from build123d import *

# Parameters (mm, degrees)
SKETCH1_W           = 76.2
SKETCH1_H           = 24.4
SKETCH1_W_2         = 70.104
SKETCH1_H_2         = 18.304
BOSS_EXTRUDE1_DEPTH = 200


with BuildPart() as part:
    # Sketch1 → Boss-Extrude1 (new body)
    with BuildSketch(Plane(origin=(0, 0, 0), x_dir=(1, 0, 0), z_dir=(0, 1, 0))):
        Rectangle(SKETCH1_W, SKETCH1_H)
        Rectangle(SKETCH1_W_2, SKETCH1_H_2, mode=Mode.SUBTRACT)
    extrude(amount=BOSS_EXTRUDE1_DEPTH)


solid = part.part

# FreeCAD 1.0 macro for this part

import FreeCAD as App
import Part
import Sketcher

V = App.Vector
Q = App.Units.Quantity

doc = App.newDocument("Part")
params = doc.addObject("Spreadsheet::Sheet", "Params")
for row, (alias, value) in enumerate([
    ("sketch1_width", "76.2 mm"),
    ("sketch1_height", "24.4 mm"),
    ("pad1_length", "200 mm"),
], start=1):
    params.set(f"A{row}", alias)
    params.set(f"B{row}", "=" + value)
    params.setAlias(f"B{row}", alias)

body = doc.addObject("PartDesign::Body", "Body")

# Sketch on XZ plane
sketch1 = body.newObject("Sketcher::SketchObject", "Sketch")
sketch1.AttachmentSupport = (doc.getObject("XZ_Plane"), [""])
sketch1.MapMode = "FlatFace"
sketch1.addGeometry(Part.LineSegment(V(-38, -12, 0), V(-38, 12, 0)), False)
sketch1.addGeometry(Part.LineSegment(V(-38, 12, 0), V(38, 12, 0)), False)
sketch1.addGeometry(Part.LineSegment(V(38, 12, 0), V(38, -12, 0)), False)
sketch1.addGeometry(Part.LineSegment(V(38, -12, 0), V(-38, -12, 0)), False)
sketch1.addGeometry(Part.LineSegment(V(35, 9, 0), V(-35, 9, 0)), False)
sketch1.addGeometry(Part.LineSegment(V(-35, 9, 0), V(-35, -9, 0)), False)
sketch1.addGeometry(Part.LineSegment(V(-35, -9, 0), V(35, -9, 0)), False)
sketch1.addGeometry(Part.LineSegment(V(35, -9, 0), V(35, 9, 0)), False)
sketch1.addConstraint(Sketcher.Constraint("Coincident", 0, 2, 1, 1))
sketch1.addConstraint(Sketcher.Constraint("Coincident", 1, 2, 2, 1))
sketch1.addConstraint(Sketcher.Constraint("Coincident", 2, 2, 3, 1))
sketch1.addConstraint(Sketcher.Constraint("Coincident", 3, 2, 0, 1))
sketch1.addConstraint(Sketcher.Constraint("Coincident", 4, 2, 5, 1))
sketch1.addConstraint(Sketcher.Constraint("Coincident", 5, 2, 6, 1))
sketch1.addConstraint(Sketcher.Constraint("Coincident", 6, 2, 7, 1))
sketch1.addConstraint(Sketcher.Constraint("Coincident", 7, 2, 4, 1))
sketch1.addConstraint(Sketcher.Constraint("Vertical", 0))
sketch1.addConstraint(Sketcher.Constraint("Horizontal", 1))
sketch1.addConstraint(Sketcher.Constraint("Vertical", 2))
sketch1.addConstraint(Sketcher.Constraint("Horizontal", 3))
sketch1.addConstraint(Sketcher.Constraint("Horizontal", 4))
sketch1.addConstraint(Sketcher.Constraint("Vertical", 5))
sketch1.addConstraint(Sketcher.Constraint("Horizontal", 6))
sketch1.addConstraint(Sketcher.Constraint("Vertical", 7))
sketch1.addConstraint(Sketcher.Constraint("Symmetric", 0, 2, 2, 2, -1, 1))
sketch1.addConstraint(Sketcher.Constraint("Symmetric", 4, 2, 6, 2, -1, 1))
sketch1.addConstraint(Sketcher.Constraint("DistanceX", 1, 1, 1, 2, Q("76.2 mm")))
sketch1.addConstraint(Sketcher.Constraint("DistanceY", 0, 1, 0, 2, Q("24.4 mm")))
sketch1.addConstraint(Sketcher.Constraint("DistanceX", 4, 2, 4, 1, Q("70.104 mm")))
sketch1.addConstraint(Sketcher.Constraint("DistanceY", 5, 2, 5, 1, Q("18.304 mm")))
sketch1.setExpression("Constraints[18]", "Params.sketch1_width")
sketch1.setExpression("Constraints[19]", "Params.sketch1_height")
pad1 = body.newObject("PartDesign::Pad", "Pad")
pad1.Profile = sketch1
pad1.setExpression("Length", "Params.pad1_length")
pad1.Reversed = True

doc.recompute()
